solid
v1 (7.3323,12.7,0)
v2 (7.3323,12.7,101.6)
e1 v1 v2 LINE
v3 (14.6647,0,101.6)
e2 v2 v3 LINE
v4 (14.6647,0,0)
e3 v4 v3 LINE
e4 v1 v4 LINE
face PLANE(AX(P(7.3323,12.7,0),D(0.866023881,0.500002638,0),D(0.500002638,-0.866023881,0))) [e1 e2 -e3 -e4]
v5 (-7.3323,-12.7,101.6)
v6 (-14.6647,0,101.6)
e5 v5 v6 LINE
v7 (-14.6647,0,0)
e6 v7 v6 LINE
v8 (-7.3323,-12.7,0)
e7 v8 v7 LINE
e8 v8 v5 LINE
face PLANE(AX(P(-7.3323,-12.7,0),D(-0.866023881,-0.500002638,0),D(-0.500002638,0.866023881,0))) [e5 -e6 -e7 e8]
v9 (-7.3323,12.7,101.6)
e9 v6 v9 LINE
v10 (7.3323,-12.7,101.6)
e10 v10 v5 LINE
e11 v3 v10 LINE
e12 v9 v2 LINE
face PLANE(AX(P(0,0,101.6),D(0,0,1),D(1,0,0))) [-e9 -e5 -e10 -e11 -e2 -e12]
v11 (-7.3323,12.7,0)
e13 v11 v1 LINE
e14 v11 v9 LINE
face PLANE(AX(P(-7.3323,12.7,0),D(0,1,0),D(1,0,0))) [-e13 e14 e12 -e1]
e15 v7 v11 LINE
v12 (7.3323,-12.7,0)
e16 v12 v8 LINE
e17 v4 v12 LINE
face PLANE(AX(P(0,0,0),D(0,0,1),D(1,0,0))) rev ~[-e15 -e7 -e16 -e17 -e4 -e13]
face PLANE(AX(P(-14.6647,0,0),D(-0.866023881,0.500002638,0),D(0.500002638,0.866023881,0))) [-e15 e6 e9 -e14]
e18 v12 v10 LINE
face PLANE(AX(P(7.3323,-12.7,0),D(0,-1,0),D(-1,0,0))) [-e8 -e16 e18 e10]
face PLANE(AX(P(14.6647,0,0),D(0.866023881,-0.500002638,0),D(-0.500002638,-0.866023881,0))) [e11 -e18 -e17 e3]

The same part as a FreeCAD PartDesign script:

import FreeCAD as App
import Part
import Sketcher
Q = App.Units.Quantity


def add_polygon(sketch, points):
    """Adds a closed chain of lines whose ends are joined by coincident constraints."""
    first, n = sketch.GeometryCount, len(points)
    for a, b in zip(points, points[1:] + points[:1]):
        sketch.addGeometry(Part.LineSegment(App.Vector(*a, 0), App.Vector(*b, 0)), False)
    for i in range(n):
        sketch.addConstraint(Sketcher.Constraint("Coincident", first + i, 2, first + (i + 1) % n, 1))

doc = App.newDocument("Part")
body = doc.addObject("PartDesign::Body", "Body")

sketch1 = body.newObject("Sketcher::SketchObject", "Sketch")
sketch1.AttachmentSupport = (doc.getObject("XY_Plane"), [""])
sketch1.MapMode = "FlatFace"
add_polygon(sketch1, [(7, -13), (15, 0), (7, 13), (-7, 13), (-15, 0), (-7, -13)])
sketch1.addConstraint([
    Sketcher.Constraint("Horizontal", 2),
    Sketcher.Constraint("Horizontal", 5),
    Sketcher.Constraint("Symmetric", 0, 2, 3, 2, -1, 1),
    Sketcher.Constraint("Symmetric", 1, 2, 4, 2, -1, 1),
    Sketcher.Constraint("PointOnObject", 0, 2, -1),
    Sketcher.Constraint("Parallel", 0, 3),
    Sketcher.Constraint("Vertical", 2, 2, 4, 2),
    Sketcher.Constraint("DistanceY", -1, 1, 1, 2, Q("0.5 in")),
    Sketcher.Constraint("Angle", 0, Q("59.9998 deg")),
    Sketcher.Constraint("DistanceX", 2, 2, 2, 1, Q("14.6646 mm")),
])
pad1 = body.newObject("PartDesign::Pad", "Pad")
pad1.Profile = sketch1
pad1.Length = Q("4 in")

doc.recompute()
